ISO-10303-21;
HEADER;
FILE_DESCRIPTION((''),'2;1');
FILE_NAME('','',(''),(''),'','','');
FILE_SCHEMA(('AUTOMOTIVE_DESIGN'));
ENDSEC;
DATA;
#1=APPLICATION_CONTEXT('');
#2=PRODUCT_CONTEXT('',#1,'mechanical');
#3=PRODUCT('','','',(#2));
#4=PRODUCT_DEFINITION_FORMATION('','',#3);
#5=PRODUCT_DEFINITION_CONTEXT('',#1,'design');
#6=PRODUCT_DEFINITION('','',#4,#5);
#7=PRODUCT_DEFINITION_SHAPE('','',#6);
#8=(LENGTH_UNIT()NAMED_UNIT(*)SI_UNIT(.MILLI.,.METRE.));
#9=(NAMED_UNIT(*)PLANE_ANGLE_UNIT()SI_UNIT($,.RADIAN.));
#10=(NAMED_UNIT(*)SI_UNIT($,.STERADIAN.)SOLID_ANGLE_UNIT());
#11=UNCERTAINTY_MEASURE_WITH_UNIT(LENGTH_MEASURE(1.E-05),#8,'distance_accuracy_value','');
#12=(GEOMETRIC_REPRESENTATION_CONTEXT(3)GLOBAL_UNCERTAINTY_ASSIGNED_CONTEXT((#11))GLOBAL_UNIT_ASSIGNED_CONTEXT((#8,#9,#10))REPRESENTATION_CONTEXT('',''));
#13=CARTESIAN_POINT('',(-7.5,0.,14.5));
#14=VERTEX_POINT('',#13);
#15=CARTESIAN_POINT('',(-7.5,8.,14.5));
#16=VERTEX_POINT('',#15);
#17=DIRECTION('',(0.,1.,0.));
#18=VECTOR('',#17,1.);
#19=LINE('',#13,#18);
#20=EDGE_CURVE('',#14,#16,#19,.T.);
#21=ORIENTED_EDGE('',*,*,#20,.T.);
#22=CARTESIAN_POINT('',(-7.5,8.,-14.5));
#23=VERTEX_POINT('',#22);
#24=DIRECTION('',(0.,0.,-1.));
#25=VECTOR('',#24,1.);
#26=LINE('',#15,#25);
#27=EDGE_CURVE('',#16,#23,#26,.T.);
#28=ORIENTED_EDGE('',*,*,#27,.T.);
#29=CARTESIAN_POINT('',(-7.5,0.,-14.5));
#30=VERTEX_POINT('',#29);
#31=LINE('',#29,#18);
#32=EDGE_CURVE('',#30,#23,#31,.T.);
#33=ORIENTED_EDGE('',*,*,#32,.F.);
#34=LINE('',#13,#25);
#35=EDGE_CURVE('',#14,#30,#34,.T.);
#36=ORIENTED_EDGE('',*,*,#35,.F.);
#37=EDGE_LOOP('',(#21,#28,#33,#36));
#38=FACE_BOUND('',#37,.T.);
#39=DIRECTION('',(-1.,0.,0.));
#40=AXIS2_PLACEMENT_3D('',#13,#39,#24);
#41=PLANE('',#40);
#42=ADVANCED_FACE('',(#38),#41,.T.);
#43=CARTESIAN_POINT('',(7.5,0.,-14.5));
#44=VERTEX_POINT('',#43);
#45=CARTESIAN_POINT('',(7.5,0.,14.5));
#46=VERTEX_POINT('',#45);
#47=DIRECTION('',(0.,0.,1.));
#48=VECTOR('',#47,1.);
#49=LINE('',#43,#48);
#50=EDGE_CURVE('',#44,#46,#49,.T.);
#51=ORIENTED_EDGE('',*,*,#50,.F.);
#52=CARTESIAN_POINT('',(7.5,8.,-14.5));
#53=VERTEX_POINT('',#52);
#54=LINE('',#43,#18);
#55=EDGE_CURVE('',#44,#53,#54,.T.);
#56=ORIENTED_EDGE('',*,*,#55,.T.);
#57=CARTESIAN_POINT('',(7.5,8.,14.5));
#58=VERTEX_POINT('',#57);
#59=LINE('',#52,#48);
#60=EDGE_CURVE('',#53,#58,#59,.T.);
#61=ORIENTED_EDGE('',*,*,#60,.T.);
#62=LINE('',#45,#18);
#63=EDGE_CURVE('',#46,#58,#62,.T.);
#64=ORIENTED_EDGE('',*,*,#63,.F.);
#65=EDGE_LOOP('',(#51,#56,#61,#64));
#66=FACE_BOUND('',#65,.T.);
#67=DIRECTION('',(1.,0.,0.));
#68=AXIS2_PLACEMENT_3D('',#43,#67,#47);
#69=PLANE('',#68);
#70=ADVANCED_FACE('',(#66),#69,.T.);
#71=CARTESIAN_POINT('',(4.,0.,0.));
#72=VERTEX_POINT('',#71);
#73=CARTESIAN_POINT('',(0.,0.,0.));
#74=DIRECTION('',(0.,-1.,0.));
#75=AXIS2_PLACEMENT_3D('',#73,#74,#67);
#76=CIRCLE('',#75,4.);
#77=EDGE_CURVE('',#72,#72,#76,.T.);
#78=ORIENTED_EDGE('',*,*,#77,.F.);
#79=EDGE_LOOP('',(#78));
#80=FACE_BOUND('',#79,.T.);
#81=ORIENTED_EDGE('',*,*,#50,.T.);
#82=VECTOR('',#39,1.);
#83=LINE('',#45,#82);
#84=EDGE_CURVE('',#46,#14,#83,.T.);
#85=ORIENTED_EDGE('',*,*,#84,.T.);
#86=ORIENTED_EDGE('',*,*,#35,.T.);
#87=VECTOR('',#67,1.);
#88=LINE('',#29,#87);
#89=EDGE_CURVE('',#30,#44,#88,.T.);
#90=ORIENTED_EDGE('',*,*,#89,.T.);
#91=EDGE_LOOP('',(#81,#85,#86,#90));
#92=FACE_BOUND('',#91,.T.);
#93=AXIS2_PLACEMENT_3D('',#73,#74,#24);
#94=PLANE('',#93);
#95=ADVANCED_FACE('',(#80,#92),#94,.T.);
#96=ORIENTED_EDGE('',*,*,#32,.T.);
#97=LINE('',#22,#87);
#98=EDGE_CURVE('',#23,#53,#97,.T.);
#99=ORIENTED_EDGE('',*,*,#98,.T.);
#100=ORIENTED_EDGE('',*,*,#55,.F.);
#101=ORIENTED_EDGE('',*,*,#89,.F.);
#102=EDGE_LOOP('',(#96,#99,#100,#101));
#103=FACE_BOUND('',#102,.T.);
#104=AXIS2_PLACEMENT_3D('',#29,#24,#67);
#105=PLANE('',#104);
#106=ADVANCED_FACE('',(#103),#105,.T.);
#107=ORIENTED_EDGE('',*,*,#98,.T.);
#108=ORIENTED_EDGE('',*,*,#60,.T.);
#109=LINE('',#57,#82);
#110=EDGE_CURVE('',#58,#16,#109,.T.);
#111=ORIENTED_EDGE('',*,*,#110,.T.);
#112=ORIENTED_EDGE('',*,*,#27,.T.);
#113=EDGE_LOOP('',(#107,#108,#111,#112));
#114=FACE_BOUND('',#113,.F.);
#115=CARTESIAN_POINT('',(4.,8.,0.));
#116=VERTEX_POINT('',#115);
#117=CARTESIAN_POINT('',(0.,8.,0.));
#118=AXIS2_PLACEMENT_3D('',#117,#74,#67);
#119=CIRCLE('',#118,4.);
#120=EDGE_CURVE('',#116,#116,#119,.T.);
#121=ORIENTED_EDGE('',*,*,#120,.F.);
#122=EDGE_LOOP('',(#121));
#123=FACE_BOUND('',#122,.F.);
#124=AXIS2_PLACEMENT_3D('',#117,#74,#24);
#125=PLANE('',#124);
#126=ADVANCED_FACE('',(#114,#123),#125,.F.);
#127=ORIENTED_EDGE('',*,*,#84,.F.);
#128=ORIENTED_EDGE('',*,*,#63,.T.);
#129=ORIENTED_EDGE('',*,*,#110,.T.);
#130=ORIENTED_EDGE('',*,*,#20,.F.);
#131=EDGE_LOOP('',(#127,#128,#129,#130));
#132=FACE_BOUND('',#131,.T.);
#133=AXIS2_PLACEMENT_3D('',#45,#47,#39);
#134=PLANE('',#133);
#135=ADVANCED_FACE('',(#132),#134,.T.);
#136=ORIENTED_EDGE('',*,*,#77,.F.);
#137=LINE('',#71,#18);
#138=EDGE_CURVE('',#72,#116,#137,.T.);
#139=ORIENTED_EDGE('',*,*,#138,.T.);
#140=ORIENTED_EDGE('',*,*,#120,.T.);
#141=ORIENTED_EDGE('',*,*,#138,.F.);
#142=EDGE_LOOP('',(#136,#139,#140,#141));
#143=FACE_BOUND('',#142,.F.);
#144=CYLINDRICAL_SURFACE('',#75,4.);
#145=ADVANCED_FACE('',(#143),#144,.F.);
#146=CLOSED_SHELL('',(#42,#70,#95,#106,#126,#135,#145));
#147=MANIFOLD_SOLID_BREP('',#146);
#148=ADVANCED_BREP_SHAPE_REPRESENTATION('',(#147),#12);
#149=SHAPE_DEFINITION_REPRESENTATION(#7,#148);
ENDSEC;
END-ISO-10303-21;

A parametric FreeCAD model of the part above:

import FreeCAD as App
import Part
import Sketcher
Q = App.Units.Quantity


def add_polygon(sketch, points):
    """Adds a closed chain of lines whose ends are joined by coincident constraints."""
    first, n = sketch.GeometryCount, len(points)
    for a, b in zip(points, points[1:] + points[:1]):
        sketch.addGeometry(Part.LineSegment(App.Vector(*a, 0), App.Vector(*b, 0)), False)
    for i in range(n):
        sketch.addConstraint(Sketcher.Constraint("Coincident", first + i, 2, first + (i + 1) % n, 1))

doc = App.newDocument("Part")
body = doc.addObject("PartDesign::Body", "Body")

sketch1 = doc.addObject("Sketcher::SketchObject", "Sketch")
body.addObject(sketch1)
sketch1.AttachmentSupport = (doc.XZ_Plane, [""])
sketch1.MapMode = "FlatFace"
add_polygon(sketch1, [(7.5, -14.5), (7.5, 14.5), (-7.5, 14.5), (-7.5, -14.5)])
sketch1.addGeometry(Part.Circle(App.Vector(0, 0, 0), App.Vector(0, 0, 1), 4), False)
sketch1.addConstraint([
    Sketcher.Constraint("Vertical", 0),
    Sketcher.Constraint("Horizontal", 1),
    Sketcher.Constraint("Vertical", 2),
    Sketcher.Constraint("Horizontal", 3),
    Sketcher.Constraint("Coincident", 4, 3, -1, 1),
    Sketcher.Constraint("Symmetric", 0, 2, 2, 2, -1, 1),
    Sketcher.Constraint("Diameter", 4, Q("8 mm")),
    Sketcher.Constraint("DistanceX", 1, 2, 1, 1, Q("15 mm")),
    Sketcher.Constraint("DistanceY", 0, 1, 0, 2, Q("29 mm")),
])
pad1 = doc.addObject("PartDesign::Pad", "Pad")
body.addObject(pad1)
pad1.Profile = sketch1
pad1.Length = 8
pad1.Reversed = True

doc.recompute()
